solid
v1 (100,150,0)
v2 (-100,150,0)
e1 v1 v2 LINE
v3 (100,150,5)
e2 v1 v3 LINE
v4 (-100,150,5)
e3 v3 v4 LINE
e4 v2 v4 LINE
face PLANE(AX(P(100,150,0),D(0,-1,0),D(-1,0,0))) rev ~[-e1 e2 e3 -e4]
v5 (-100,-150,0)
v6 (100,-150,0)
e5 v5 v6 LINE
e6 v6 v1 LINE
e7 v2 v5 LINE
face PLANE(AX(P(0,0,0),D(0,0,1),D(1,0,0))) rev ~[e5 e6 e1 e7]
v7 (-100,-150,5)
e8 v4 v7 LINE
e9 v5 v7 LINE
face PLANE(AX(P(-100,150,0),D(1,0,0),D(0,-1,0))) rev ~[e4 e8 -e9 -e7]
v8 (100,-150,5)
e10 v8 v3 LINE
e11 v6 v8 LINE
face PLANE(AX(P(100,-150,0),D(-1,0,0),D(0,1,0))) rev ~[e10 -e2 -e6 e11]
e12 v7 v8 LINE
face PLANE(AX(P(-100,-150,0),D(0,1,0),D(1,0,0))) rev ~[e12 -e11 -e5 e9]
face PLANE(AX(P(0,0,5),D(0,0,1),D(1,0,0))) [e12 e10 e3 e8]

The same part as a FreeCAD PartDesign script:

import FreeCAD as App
import Part
import Sketcher
Q = App.Units.Quantity


def add_polygon(sketch, points):
    """Adds a closed chain of lines whose ends are joined by coincident constraints."""
    first, n = sketch.GeometryCount, len(points)
    for a, b in zip(points, points[1:] + points[:1]):
        sketch.addGeometry(Part.LineSegment(App.Vector(*a, 0), App.Vector(*b, 0)), False)
    for i in range(n):
        sketch.addConstraint(Sketcher.Constraint("Coincident", first + i, 2, first + (i + 1) % n, 1))

doc = App.newDocument("Part")
body = doc.addObject("PartDesign::Body", "Body")

# Sketch on XY plane
sketch1 = body.newObject("Sketcher::SketchObject", "Sketch")
sketch1.AttachmentSupport = (doc.getObject("XY_Plane"), [""])
sketch1.MapMode = "FlatFace"
add_polygon(sketch1, [(-100, -150), (100, -150), (100, 150), (-100, 150)])  # lines 0-3
sketch1.addConstraint(Sketcher.Constraint("Horizontal", 0))
sketch1.addConstraint(Sketcher.Constraint("Vertical", 1))
sketch1.addConstraint(Sketcher.Constraint("Horizontal", 2))
sketch1.addConstraint(Sketcher.Constraint("Vertical", 3))
sketch1.addConstraint(Sketcher.Constraint("Symmetric", 0, 2, 2, 2, -1, 1))
sketch1.addConstraint(Sketcher.Constraint("DistanceX", 0, 1, 0, 2, Q("200 mm")))
sketch1.addConstraint(Sketcher.Constraint("DistanceY", 1, 1, 1, 2, Q("300 mm")))
pad1 = body.newObject("PartDesign::Pad", "Pad")
pad1.Profile = sketch1
pad1.Length = 5

doc.recompute()
